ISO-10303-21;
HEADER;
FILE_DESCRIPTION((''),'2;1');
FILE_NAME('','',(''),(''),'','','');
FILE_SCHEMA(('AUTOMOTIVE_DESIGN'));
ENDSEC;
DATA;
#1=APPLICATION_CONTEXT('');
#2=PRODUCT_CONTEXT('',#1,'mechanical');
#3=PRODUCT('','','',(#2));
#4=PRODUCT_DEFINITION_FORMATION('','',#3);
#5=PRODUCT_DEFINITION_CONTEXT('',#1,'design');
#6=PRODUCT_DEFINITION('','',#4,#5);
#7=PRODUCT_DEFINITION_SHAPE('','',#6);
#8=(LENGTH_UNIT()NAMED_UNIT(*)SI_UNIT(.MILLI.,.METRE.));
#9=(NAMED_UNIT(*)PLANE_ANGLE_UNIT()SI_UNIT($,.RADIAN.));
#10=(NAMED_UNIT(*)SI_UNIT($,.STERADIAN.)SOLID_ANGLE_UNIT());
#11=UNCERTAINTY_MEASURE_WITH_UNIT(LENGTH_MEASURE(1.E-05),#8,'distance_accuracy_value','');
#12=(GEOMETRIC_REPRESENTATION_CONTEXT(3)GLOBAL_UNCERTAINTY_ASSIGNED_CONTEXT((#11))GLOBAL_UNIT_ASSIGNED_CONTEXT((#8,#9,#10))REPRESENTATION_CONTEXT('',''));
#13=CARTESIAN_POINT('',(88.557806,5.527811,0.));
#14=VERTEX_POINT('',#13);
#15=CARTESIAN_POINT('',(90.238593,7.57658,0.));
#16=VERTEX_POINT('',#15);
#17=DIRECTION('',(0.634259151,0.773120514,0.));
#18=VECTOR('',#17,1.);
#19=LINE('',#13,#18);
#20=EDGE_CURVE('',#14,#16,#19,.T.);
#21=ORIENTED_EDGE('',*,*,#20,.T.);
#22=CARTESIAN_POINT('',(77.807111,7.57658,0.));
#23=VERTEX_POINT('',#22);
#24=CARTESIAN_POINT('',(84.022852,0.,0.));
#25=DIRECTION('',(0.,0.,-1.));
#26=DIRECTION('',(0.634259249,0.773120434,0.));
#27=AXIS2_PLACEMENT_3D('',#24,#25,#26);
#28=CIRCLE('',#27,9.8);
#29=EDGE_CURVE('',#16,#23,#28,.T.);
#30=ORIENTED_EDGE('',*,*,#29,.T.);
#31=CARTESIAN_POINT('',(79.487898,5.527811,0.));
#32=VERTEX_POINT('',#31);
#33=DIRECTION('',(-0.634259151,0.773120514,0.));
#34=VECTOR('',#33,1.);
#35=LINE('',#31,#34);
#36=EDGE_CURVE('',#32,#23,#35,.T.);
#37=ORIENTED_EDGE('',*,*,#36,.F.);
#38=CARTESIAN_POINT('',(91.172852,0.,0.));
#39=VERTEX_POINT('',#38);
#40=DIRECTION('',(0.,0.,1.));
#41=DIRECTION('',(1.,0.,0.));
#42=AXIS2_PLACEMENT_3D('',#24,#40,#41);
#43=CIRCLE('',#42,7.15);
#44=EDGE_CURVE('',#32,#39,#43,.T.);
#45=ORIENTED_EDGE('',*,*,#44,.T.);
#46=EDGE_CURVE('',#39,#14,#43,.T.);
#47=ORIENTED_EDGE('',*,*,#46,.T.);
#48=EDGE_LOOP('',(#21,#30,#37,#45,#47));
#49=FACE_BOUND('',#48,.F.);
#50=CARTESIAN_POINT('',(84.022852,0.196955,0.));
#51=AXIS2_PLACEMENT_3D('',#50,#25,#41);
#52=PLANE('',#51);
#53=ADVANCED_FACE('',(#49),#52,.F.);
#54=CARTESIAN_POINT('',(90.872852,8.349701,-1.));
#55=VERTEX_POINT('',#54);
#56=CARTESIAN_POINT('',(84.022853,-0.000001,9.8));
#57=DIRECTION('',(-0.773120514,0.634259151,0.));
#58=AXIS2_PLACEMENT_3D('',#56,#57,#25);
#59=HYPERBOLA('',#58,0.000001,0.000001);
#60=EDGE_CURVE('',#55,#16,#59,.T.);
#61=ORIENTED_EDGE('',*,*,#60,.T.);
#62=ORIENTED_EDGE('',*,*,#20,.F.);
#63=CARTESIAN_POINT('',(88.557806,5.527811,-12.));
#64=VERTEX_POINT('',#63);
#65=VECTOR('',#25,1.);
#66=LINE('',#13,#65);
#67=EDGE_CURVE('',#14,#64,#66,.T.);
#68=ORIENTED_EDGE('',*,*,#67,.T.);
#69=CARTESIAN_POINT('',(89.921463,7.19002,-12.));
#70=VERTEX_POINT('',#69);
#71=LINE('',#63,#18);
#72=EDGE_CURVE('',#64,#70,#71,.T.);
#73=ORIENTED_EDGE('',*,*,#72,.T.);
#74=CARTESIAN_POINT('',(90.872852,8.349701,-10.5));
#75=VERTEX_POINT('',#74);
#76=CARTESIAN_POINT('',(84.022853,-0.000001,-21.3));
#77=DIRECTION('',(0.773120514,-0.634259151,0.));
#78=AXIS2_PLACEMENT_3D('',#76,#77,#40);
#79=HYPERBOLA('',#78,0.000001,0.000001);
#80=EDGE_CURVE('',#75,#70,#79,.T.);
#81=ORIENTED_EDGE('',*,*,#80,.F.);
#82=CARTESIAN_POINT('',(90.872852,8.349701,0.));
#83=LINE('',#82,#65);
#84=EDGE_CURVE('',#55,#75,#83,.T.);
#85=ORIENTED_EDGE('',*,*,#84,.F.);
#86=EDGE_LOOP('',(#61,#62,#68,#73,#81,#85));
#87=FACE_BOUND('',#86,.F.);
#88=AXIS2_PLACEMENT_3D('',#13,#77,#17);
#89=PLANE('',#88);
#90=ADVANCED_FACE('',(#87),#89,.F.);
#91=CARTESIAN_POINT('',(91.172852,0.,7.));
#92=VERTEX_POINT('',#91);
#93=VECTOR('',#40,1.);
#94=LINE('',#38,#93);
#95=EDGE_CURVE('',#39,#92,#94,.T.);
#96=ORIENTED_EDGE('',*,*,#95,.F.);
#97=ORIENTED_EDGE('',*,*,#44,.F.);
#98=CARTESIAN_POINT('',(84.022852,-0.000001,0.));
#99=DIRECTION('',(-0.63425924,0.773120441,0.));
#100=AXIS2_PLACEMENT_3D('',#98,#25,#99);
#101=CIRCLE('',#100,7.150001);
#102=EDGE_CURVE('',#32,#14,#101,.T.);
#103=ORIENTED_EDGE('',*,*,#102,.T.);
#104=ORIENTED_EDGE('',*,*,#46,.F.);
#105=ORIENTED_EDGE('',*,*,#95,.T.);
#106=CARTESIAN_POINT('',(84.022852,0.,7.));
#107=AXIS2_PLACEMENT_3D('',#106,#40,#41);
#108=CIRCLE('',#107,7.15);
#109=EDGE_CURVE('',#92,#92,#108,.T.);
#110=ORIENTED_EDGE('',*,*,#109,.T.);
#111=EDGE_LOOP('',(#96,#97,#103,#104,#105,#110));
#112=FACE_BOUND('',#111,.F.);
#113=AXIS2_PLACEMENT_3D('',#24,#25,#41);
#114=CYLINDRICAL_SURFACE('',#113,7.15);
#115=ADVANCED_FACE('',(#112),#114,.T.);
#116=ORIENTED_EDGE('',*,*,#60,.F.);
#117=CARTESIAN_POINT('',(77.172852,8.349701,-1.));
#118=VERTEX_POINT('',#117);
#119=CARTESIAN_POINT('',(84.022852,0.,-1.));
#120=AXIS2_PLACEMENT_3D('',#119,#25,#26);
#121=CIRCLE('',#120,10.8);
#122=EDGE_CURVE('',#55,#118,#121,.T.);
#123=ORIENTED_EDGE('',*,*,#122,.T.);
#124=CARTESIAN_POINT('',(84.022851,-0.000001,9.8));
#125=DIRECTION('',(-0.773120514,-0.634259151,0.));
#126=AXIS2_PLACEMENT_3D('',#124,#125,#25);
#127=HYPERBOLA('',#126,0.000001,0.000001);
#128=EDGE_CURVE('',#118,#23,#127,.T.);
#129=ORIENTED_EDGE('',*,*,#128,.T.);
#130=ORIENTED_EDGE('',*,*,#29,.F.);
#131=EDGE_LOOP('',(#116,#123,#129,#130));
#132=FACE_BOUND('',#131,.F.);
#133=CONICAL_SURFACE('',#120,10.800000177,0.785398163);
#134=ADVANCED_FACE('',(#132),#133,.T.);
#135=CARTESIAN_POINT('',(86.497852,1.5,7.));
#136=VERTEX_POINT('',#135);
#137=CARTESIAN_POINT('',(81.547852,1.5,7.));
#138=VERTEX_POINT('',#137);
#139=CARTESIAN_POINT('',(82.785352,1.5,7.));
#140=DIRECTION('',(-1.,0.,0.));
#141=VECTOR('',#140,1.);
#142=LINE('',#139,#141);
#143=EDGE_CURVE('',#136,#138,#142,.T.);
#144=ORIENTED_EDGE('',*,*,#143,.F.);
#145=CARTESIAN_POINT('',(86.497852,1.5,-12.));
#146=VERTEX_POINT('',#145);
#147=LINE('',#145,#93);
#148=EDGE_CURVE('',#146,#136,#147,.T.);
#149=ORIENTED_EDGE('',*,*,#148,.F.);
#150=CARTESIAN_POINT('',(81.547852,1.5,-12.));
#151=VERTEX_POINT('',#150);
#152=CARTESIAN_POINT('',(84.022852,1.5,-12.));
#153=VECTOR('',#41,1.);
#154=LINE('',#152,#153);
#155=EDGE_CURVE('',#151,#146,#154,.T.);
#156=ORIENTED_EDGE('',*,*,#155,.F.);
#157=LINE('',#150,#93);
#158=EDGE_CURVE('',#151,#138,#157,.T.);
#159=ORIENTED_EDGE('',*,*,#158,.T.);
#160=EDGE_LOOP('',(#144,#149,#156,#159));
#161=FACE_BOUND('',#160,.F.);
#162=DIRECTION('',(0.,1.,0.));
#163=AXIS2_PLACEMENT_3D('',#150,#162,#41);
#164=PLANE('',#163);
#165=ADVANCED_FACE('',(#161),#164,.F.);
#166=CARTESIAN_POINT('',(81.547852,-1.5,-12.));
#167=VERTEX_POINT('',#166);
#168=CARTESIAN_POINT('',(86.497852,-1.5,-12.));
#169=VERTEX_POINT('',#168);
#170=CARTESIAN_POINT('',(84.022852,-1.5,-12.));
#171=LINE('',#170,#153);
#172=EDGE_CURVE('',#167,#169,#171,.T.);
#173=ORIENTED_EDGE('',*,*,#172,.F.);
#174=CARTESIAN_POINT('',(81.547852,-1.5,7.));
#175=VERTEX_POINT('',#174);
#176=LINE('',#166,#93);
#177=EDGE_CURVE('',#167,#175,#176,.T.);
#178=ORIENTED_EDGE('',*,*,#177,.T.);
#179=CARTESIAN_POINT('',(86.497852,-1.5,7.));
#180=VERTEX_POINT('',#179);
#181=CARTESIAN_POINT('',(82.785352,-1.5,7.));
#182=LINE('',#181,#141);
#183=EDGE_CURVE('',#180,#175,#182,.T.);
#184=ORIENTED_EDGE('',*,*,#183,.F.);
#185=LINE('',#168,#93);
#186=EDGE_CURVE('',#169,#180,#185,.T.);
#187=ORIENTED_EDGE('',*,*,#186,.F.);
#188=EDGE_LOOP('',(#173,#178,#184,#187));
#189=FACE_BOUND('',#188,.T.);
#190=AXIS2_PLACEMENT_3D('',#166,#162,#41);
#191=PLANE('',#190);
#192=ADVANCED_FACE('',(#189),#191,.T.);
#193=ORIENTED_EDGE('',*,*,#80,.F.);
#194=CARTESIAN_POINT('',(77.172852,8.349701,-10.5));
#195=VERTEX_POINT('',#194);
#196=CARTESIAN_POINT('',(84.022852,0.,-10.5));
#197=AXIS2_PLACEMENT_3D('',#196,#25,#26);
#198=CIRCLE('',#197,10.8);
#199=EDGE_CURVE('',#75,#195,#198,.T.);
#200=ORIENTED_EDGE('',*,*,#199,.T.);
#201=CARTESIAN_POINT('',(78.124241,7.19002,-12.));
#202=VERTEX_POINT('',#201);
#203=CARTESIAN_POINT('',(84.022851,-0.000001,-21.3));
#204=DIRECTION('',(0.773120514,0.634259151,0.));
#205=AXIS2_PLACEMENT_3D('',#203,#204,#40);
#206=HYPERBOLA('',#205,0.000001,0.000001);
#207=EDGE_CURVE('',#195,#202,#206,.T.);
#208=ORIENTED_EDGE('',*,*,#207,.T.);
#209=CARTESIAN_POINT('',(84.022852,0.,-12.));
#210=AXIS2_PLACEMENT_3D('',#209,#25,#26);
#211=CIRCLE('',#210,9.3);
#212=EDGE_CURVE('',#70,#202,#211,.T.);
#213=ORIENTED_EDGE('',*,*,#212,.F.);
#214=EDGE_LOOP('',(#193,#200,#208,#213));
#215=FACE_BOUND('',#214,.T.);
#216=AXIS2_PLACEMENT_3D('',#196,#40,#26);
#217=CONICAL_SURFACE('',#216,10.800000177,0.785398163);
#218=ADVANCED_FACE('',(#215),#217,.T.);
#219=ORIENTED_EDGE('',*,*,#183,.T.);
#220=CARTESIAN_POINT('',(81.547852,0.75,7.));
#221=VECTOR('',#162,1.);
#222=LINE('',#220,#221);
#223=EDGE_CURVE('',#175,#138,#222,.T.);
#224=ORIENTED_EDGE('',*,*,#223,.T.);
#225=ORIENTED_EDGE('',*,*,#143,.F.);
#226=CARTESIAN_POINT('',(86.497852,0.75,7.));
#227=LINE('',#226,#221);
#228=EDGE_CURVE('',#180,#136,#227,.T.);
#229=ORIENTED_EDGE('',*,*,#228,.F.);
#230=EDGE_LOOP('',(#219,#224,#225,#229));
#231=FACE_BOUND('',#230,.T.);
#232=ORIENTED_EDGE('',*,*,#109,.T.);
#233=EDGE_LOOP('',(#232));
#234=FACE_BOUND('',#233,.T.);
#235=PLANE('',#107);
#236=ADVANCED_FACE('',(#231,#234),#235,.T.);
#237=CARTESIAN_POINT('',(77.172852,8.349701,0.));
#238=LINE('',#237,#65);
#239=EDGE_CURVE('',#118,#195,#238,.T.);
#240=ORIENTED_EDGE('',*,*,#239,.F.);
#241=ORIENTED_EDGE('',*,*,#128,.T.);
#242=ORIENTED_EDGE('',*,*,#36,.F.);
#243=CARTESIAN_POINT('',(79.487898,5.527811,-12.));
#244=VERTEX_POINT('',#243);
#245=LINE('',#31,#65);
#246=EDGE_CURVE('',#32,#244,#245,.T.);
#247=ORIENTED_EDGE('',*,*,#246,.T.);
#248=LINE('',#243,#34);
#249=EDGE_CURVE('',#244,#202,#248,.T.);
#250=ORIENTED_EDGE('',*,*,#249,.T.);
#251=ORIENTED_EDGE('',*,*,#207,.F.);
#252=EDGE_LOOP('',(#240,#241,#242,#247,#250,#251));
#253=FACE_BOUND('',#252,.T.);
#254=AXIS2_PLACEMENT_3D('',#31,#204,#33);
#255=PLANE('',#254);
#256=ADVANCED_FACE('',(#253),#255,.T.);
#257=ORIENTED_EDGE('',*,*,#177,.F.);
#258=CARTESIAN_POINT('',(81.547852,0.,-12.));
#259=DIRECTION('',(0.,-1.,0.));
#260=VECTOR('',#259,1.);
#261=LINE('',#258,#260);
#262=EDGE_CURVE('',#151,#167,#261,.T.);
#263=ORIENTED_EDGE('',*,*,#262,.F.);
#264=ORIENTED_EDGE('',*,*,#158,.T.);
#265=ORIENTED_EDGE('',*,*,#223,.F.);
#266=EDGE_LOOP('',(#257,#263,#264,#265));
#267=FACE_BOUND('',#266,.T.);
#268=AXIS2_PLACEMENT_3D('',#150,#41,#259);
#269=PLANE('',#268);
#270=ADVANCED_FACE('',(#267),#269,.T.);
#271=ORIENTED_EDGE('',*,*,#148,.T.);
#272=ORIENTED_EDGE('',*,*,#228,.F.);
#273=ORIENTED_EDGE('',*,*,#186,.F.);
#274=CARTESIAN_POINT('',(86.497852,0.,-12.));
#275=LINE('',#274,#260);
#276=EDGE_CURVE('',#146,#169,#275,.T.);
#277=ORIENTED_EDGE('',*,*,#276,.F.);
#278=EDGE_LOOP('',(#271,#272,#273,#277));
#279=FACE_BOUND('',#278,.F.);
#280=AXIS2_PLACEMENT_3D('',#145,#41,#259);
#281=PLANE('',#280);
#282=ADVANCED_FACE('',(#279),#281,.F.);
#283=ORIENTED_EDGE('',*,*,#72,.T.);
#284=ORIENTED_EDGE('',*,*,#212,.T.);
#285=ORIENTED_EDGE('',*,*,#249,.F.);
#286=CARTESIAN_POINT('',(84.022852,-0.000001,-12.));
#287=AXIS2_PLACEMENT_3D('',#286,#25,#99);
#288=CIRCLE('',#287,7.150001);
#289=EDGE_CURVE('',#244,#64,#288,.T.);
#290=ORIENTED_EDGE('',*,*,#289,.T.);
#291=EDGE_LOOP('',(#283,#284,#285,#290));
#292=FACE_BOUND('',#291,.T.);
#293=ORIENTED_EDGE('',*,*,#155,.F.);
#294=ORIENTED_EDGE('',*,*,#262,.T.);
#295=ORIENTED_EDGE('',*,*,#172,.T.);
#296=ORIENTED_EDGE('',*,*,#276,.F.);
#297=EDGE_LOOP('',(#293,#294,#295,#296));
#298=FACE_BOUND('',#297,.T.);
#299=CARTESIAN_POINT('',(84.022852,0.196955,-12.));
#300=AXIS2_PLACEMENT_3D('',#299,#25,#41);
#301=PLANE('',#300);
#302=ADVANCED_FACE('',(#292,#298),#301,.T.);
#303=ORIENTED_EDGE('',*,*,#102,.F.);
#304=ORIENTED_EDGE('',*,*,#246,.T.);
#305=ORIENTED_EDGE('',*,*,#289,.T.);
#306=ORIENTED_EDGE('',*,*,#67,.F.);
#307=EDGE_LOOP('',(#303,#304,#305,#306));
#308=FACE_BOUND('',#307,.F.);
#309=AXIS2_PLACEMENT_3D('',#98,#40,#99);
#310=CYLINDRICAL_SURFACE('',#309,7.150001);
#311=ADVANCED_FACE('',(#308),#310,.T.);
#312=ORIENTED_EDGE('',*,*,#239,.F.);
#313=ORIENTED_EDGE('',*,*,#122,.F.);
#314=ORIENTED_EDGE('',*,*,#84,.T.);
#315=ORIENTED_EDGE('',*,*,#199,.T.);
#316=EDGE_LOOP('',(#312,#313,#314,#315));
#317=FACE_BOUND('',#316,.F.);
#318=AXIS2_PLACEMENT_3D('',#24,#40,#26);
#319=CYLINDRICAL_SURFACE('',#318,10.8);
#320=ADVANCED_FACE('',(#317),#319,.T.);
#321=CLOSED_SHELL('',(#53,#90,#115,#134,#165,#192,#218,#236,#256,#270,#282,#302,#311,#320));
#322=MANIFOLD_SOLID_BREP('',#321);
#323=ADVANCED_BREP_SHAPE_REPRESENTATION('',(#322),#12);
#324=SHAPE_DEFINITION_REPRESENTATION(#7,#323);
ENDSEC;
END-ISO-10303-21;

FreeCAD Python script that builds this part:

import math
import FreeCAD as App
import Part
import Sketcher
from FreeCAD import Vector


def edges_at(feature, points):
    """Names of the edges that pass closest to the given points."""
    edges = feature.Shape.Edges
    near = lambda p: min(range(len(edges)), key=lambda i: edges[i].distToShape(Part.Vertex(*p))[0])
    return sorted({f"Edge{near(p) + 1}" for p in points})


def add_polygon(sketch, points):
    """Adds a closed chain of lines whose ends are joined by coincident constraints."""
    first, n = sketch.GeometryCount, len(points)
    for a, b in zip(points, points[1:] + points[:1]):
        sketch.addGeometry(Part.LineSegment(App.Vector(*a, 0), App.Vector(*b, 0)), False)
    for i in range(n):
        sketch.addConstraint(Sketcher.Constraint("Coincident", first + i, 2, first + (i + 1) % n, 1))

doc = App.newDocument("Part")
params = doc.addObject("Spreadsheet::Sheet", "Params")
for row, (alias, value) in enumerate([
    ("sketch1_diameter", "14.3 mm"),
    ("pad1_length", "7 mm"),
    ("sketch2_radius", "10.8 mm"),
    ("sketch2_radius2", "7.150001 mm"),
    ("pad2_length", "12 mm"),
    ("sketch3_height", "3 mm"),
    ("sketch3_width", "4.95 mm"),
    ("chamfer_size", "1.5 mm"),
    ("chamfer2_size", "1 mm"),
], start=1):
    params.set(f"A{row}", alias)
    params.set(f"B{row}", "=" + value)
    params.setAlias(f"B{row}", alias)

body = doc.addObject("PartDesign::Body", "Body")

# Sketch on XY plane
sketch1 = body.newObject("Sketcher::SketchObject", "Sketch")
sketch1.AttachmentSupport = (doc.getObject("XY_Plane"), [""])
sketch1.MapMode = "FlatFace"
sketch1.addGeometry(Part.Circle(Vector(84, 0, 0), Vector(0, 0, 1), 7), False)
sketch1.addConstraint(Sketcher.Constraint("PointOnObject", 0, 3, -1))
sketch1.addConstraint(Sketcher.Constraint("Diameter", 0, 14.3))
sketch1.addConstraint(Sketcher.Constraint("DistanceX", -1, 1, 0, 3, 84.022852))
sketch1.setExpression("Constraints[1]", "Params.sketch1_diameter")
pad1 = body.newObject("PartDesign::Pad", "Pad")
pad1.Profile = sketch1
pad1.setExpression("Length", "Params.pad1_length")

# Sketch on XY plane
sketch2 = body.newObject("Sketcher::SketchObject", "Sketch001")
sketch2.AttachmentSupport = (doc.getObject("XY_Plane"), [""])
sketch2.MapMode = "FlatFace"
sketch2.addGeometry(Part.ArcOfCircle(Part.Circle(Vector(84, 0, 0), Vector(0, 0, 1), 10.8), math.radians(129), math.radians(411)), False)
sketch2.addGeometry(Part.LineSegment(Vector(77.2, 8.3, 0), Vector(79.5, 5.5, 0)), False)
sketch2.addGeometry(Part.ArcOfCircle(Part.Circle(Vector(84, 0, 0), Vector(0, 0, 1), 7.2), math.radians(51), math.radians(129)), False)
sketch2.addGeometry(Part.LineSegment(Vector(88.6, 5.5, 0), Vector(90.9, 8.3, 0)), False)
sketch2.addConstraint(Sketcher.Constraint("Coincident", 0, 1, 1, 1))
sketch2.addConstraint(Sketcher.Constraint("Coincident", 1, 2, 2, 2))
sketch2.addConstraint(Sketcher.Constraint("Coincident", 2, 1, 3, 1))
sketch2.addConstraint(Sketcher.Constraint("Coincident", 3, 2, 0, 2))
sketch2.addConstraint(Sketcher.Constraint("Coincident", 2, 3, 0, 3))
sketch2.addConstraint(Sketcher.Constraint("PointOnObject", 0, 3, -1))
sketch2.addConstraint(Sketcher.Constraint("Horizontal", 1, 2, 2, 1))
sketch2.addConstraint(Sketcher.Constraint("Horizontal", 0, 1, 3, 2))
sketch2.addConstraint(Sketcher.Constraint("Radius", 0, 10.8))
sketch2.addConstraint(Sketcher.Constraint("Radius", 2, 7.150001))
sketch2.addConstraint(Sketcher.Constraint("DistanceX", 0, 1, 3, 2, 13.7))
sketch2.addConstraint(Sketcher.Constraint("DistanceX", -1, 1, 1, 2, 79.487898))
sketch2.addConstraint(Sketcher.Constraint("DistanceX", -1, 1, 0, 3, 84.022852))
sketch2.setExpression("Constraints[8]", "Params.sketch2_radius")
sketch2.setExpression("Constraints[9]", "Params.sketch2_radius2")
pad2 = body.newObject("PartDesign::Pad", "Pad001")
pad2.Profile = sketch2
pad2.setExpression("Length", "Params.pad2_length")
pad2.Reversed = True

# Sketch on XY plane
sketch3 = body.newObject("Sketcher::SketchObject", "Sketch002")
sketch3.AttachmentSupport = (doc.getObject("XY_Plane"), [""])
sketch3.MapMode = "FlatFace"
sketch3.AttachmentOffset = App.Placement(Vector(0, 0, -12), App.Rotation())
add_polygon(sketch3, [(81.5, -1.5), (81.5, 1.5), (86.5, 1.5), (86.5, -1.5)])  # lines 0-3
sketch3.addConstraint(Sketcher.Constraint("Vertical", 0))
sketch3.addConstraint(Sketcher.Constraint("Horizontal", 1))
sketch3.addConstraint(Sketcher.Constraint("Vertical", 2))
sketch3.addConstraint(Sketcher.Constraint("Horizontal", 3))
sketch3.addConstraint(Sketcher.Constraint("DistanceY", 0, 1, 0, 2, 3.0))
sketch3.addConstraint(Sketcher.Constraint("DistanceX", 1, 1, 1, 2, 4.95))
sketch3.addConstraint(Sketcher.Constraint("DistanceY", -1, 1, 0, 2, 1.5))
sketch3.addConstraint(Sketcher.Constraint("DistanceX", -1, 1, 1, 2, 86.497852))
sketch3.setExpression("Constraints[8]", "Params.sketch3_height")
sketch3.setExpression("Constraints[9]", "Params.sketch3_width")
pocket1 = body.newObject("PartDesign::Pocket", "Pocket")
pocket1.Profile = sketch3
pocket1.Type = "ThroughAll"
pocket1.Reversed = True
doc.recompute()

chamfer = body.newObject("PartDesign::Chamfer", "Chamfer")
chamfer.Base = (pocket1, edges_at(pocket1, [(84.023, -10.8, -12)]))
chamfer.setExpression("Size", "Params.chamfer_size")
doc.recompute()

chamfer2 = body.newObject("PartDesign::Chamfer", "Chamfer001")
chamfer2.Base = (chamfer, edges_at(chamfer, [(84.023, -10.8, 0)]))
chamfer2.setExpression("Size", "Params.chamfer2_size")

doc.recompute()
